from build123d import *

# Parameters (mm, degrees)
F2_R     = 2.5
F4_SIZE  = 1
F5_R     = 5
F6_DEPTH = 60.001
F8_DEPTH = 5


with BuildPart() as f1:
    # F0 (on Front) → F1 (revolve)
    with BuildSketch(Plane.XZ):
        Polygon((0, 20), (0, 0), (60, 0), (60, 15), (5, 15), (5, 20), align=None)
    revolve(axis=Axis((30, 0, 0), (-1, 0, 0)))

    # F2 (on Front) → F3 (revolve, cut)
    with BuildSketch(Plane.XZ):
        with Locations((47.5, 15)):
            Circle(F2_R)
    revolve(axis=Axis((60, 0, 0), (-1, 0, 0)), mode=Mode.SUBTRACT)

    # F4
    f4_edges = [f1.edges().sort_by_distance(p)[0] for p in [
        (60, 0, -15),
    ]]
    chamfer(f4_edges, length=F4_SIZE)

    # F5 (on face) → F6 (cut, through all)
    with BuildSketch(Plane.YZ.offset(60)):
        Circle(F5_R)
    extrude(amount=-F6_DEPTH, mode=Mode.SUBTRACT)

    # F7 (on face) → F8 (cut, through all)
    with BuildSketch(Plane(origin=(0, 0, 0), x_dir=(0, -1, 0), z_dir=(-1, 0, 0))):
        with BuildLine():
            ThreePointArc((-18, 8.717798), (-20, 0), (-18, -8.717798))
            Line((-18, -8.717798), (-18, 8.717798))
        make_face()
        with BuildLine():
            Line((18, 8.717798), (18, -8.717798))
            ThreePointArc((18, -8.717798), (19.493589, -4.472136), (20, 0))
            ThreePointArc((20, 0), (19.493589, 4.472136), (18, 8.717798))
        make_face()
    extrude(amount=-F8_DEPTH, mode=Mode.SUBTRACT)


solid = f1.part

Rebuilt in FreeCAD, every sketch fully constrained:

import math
import FreeCAD as App
import Part
import Sketcher


def edges_at(feature, points):
    """Names of the edges that pass closest to the given points."""
    edges = feature.Shape.Edges
    near = lambda p: min(range(len(edges)), key=lambda i: edges[i].distToShape(Part.Vertex(*p))[0])
    return sorted({f"Edge{near(p) + 1}" for p in points})


def add_polygon(sketch, points):
    """Adds a closed chain of lines whose ends are joined by coincident constraints."""
    first, n = sketch.GeometryCount, len(points)
    for a, b in zip(points, points[1:] + points[:1]):
        sketch.addGeometry(Part.LineSegment(App.Vector(*a, 0), App.Vector(*b, 0)), False)
    for i in range(n):
        sketch.addConstraint(Sketcher.Constraint("Coincident", first + i, 2, first + (i + 1) % n, 1))

doc = App.newDocument("Part")
body = doc.addObject("PartDesign::Body", "Body")

# Sketch on XZ plane
sketch1 = doc.addObject("Sketcher::SketchObject", "Sketch")
body.addObject(sketch1)
sketch1.AttachmentSupport = (doc.XZ_Plane, [""])
sketch1.MapMode = "FlatFace"
add_polygon(sketch1, [(0, 20), (0, 0), (60, 0), (60, 15), (5, 15), (5, 20)])  # lines 0-5
sketch1.addConstraint([
    Sketcher.Constraint("Vertical", 0),
    Sketcher.Constraint("Horizontal", 1),
    Sketcher.Constraint("Vertical", 2),
    Sketcher.Constraint("Horizontal", 3),
    Sketcher.Constraint("Vertical", 4),
    Sketcher.Constraint("Horizontal", 5),
    Sketcher.Constraint("Coincident", 0, 2, -1, 1),
    Sketcher.Constraint("Equal", 5, 4),
    Sketcher.Constraint("DistanceX", 1, 1, 1, 2, 60.0),
    Sketcher.Constraint("DistanceX", 3, 2, 3, 1, 55.0),
    Sketcher.Constraint("DistanceY", 0, 2, 0, 1, 20.0),
])
revolution = doc.addObject("PartDesign::Revolution", "Revolution")
body.addObject(revolution)
revolution.Profile = sketch1
revolution.ReferenceAxis = (sketch1, ["H_Axis"])
revolution.Angle = 360

# Sketch on XZ plane
sketch2 = doc.addObject("Sketcher::SketchObject", "Sketch001")
body.addObject(sketch2)
sketch2.AttachmentSupport = (doc.XZ_Plane, [""])
sketch2.MapMode = "FlatFace"
sketch2.addGeometry(Part.Circle(App.Vector(47.5, 15, 0), App.Vector(0, 0, 1), 2.5), False)
sketch2.addConstraint([
    Sketcher.Constraint("Diameter", 0, 5.0),
    Sketcher.Constraint("DistanceY", -1, 1, 0, 3, 15.0),
    Sketcher.Constraint("DistanceX", -1, 1, 0, 3, 47.5),
])
groove = doc.addObject("PartDesign::Groove", "Groove")
body.addObject(groove)
groove.Profile = sketch2
groove.ReferenceAxis = (sketch2, ["H_Axis"])
groove.Angle = 360
doc.recompute()

chamfer = doc.addObject("PartDesign::Chamfer", "Chamfer")
body.addObject(chamfer)
chamfer.Base = (groove, edges_at(groove, [(60, 0, -15)]))
chamfer.Size = 1

# Sketch on YZ plane
sketch3 = doc.addObject("Sketcher::SketchObject", "Sketch002")
body.addObject(sketch3)
sketch3.AttachmentSupport = (doc.YZ_Plane, [""])
sketch3.MapMode = "FlatFace"
sketch3.AttachmentOffset = App.Placement(App.Vector(0, 0, 60), App.Rotation())
sketch3.addGeometry(Part.Circle(App.Vector(0, 0, 0), App.Vector(0, 0, 1), 5), False)
sketch3.addConstraint([
    Sketcher.Constraint("Coincident", 0, 3, -1, 1),
    Sketcher.Constraint("Diameter", 0, 10.0),
])
pocket1 = doc.addObject("PartDesign::Pocket", "Pocket")
body.addObject(pocket1)
pocket1.Profile = sketch3
pocket1.Type = "ThroughAll"

# Sketch on YZ plane
sketch4 = doc.addObject("Sketcher::SketchObject", "Sketch003")
body.addObject(sketch4)
sketch4.AttachmentSupport = (doc.YZ_Plane, [""])
sketch4.MapMode = "FlatFace"
sketch4.addGeometry([
    Part.ArcOfCircle(Part.Circle(App.Vector(0, 0, 0), App.Vector(0, 0, 1), 20), math.radians(-26), math.radians(26)),  # 0
    Part.LineSegment(App.Vector(18, -9, 0), App.Vector(18, 9, 0)),  # 1
    Part.LineSegment(App.Vector(-18, 9, 0), App.Vector(-18, -9, 0)),  # 2
    Part.ArcOfCircle(Part.Circle(App.Vector(0, 0, 0), App.Vector(0, 0, 1), 20), math.radians(180), math.radians(206)),  # 3
    Part.ArcOfCircle(Part.Circle(App.Vector(0, 0, 0), App.Vector(0, 0, 1), 20), math.radians(154), math.radians(180)),  # 4
], False)
sketch4.addConstraint([
    Sketcher.Constraint("Coincident", 0, 1, 1, 1),
    Sketcher.Constraint("Coincident", 1, 2, 0, 2),
    Sketcher.Constraint("Coincident", 2, 2, 3, 2),
    Sketcher.Constraint("Tangent", 3, 1, 4, 2),
    Sketcher.Constraint("Coincident", 4, 1, 2, 1),
    Sketcher.Constraint("Vertical", 1),
    Sketcher.Constraint("Vertical", 2),
    Sketcher.Constraint("Coincident", 0, 3, -1, 1),
    Sketcher.Constraint("Equal", 3, 4),
    Sketcher.Constraint("Symmetric", 1, 2, 2, 2, -1, 1),
    Sketcher.Constraint("PointOnObject", 3, 1, -1),
    Sketcher.Constraint("Horizontal", 1, 2, 4, 1),
    Sketcher.Constraint("Radius", 0, 20.0),
    Sketcher.Constraint("DistanceX", -1, 1, 0, 1, 18.0),
    Sketcher.Constraint("DistanceX", 3, 1, -1, 1, 20.0),
])
pocket2 = doc.addObject("PartDesign::Pocket", "Pocket001")
body.addObject(pocket2)
pocket2.Profile = sketch4
pocket2.Type = "ThroughAll"
pocket2.Reversed = True

doc.recompute()
